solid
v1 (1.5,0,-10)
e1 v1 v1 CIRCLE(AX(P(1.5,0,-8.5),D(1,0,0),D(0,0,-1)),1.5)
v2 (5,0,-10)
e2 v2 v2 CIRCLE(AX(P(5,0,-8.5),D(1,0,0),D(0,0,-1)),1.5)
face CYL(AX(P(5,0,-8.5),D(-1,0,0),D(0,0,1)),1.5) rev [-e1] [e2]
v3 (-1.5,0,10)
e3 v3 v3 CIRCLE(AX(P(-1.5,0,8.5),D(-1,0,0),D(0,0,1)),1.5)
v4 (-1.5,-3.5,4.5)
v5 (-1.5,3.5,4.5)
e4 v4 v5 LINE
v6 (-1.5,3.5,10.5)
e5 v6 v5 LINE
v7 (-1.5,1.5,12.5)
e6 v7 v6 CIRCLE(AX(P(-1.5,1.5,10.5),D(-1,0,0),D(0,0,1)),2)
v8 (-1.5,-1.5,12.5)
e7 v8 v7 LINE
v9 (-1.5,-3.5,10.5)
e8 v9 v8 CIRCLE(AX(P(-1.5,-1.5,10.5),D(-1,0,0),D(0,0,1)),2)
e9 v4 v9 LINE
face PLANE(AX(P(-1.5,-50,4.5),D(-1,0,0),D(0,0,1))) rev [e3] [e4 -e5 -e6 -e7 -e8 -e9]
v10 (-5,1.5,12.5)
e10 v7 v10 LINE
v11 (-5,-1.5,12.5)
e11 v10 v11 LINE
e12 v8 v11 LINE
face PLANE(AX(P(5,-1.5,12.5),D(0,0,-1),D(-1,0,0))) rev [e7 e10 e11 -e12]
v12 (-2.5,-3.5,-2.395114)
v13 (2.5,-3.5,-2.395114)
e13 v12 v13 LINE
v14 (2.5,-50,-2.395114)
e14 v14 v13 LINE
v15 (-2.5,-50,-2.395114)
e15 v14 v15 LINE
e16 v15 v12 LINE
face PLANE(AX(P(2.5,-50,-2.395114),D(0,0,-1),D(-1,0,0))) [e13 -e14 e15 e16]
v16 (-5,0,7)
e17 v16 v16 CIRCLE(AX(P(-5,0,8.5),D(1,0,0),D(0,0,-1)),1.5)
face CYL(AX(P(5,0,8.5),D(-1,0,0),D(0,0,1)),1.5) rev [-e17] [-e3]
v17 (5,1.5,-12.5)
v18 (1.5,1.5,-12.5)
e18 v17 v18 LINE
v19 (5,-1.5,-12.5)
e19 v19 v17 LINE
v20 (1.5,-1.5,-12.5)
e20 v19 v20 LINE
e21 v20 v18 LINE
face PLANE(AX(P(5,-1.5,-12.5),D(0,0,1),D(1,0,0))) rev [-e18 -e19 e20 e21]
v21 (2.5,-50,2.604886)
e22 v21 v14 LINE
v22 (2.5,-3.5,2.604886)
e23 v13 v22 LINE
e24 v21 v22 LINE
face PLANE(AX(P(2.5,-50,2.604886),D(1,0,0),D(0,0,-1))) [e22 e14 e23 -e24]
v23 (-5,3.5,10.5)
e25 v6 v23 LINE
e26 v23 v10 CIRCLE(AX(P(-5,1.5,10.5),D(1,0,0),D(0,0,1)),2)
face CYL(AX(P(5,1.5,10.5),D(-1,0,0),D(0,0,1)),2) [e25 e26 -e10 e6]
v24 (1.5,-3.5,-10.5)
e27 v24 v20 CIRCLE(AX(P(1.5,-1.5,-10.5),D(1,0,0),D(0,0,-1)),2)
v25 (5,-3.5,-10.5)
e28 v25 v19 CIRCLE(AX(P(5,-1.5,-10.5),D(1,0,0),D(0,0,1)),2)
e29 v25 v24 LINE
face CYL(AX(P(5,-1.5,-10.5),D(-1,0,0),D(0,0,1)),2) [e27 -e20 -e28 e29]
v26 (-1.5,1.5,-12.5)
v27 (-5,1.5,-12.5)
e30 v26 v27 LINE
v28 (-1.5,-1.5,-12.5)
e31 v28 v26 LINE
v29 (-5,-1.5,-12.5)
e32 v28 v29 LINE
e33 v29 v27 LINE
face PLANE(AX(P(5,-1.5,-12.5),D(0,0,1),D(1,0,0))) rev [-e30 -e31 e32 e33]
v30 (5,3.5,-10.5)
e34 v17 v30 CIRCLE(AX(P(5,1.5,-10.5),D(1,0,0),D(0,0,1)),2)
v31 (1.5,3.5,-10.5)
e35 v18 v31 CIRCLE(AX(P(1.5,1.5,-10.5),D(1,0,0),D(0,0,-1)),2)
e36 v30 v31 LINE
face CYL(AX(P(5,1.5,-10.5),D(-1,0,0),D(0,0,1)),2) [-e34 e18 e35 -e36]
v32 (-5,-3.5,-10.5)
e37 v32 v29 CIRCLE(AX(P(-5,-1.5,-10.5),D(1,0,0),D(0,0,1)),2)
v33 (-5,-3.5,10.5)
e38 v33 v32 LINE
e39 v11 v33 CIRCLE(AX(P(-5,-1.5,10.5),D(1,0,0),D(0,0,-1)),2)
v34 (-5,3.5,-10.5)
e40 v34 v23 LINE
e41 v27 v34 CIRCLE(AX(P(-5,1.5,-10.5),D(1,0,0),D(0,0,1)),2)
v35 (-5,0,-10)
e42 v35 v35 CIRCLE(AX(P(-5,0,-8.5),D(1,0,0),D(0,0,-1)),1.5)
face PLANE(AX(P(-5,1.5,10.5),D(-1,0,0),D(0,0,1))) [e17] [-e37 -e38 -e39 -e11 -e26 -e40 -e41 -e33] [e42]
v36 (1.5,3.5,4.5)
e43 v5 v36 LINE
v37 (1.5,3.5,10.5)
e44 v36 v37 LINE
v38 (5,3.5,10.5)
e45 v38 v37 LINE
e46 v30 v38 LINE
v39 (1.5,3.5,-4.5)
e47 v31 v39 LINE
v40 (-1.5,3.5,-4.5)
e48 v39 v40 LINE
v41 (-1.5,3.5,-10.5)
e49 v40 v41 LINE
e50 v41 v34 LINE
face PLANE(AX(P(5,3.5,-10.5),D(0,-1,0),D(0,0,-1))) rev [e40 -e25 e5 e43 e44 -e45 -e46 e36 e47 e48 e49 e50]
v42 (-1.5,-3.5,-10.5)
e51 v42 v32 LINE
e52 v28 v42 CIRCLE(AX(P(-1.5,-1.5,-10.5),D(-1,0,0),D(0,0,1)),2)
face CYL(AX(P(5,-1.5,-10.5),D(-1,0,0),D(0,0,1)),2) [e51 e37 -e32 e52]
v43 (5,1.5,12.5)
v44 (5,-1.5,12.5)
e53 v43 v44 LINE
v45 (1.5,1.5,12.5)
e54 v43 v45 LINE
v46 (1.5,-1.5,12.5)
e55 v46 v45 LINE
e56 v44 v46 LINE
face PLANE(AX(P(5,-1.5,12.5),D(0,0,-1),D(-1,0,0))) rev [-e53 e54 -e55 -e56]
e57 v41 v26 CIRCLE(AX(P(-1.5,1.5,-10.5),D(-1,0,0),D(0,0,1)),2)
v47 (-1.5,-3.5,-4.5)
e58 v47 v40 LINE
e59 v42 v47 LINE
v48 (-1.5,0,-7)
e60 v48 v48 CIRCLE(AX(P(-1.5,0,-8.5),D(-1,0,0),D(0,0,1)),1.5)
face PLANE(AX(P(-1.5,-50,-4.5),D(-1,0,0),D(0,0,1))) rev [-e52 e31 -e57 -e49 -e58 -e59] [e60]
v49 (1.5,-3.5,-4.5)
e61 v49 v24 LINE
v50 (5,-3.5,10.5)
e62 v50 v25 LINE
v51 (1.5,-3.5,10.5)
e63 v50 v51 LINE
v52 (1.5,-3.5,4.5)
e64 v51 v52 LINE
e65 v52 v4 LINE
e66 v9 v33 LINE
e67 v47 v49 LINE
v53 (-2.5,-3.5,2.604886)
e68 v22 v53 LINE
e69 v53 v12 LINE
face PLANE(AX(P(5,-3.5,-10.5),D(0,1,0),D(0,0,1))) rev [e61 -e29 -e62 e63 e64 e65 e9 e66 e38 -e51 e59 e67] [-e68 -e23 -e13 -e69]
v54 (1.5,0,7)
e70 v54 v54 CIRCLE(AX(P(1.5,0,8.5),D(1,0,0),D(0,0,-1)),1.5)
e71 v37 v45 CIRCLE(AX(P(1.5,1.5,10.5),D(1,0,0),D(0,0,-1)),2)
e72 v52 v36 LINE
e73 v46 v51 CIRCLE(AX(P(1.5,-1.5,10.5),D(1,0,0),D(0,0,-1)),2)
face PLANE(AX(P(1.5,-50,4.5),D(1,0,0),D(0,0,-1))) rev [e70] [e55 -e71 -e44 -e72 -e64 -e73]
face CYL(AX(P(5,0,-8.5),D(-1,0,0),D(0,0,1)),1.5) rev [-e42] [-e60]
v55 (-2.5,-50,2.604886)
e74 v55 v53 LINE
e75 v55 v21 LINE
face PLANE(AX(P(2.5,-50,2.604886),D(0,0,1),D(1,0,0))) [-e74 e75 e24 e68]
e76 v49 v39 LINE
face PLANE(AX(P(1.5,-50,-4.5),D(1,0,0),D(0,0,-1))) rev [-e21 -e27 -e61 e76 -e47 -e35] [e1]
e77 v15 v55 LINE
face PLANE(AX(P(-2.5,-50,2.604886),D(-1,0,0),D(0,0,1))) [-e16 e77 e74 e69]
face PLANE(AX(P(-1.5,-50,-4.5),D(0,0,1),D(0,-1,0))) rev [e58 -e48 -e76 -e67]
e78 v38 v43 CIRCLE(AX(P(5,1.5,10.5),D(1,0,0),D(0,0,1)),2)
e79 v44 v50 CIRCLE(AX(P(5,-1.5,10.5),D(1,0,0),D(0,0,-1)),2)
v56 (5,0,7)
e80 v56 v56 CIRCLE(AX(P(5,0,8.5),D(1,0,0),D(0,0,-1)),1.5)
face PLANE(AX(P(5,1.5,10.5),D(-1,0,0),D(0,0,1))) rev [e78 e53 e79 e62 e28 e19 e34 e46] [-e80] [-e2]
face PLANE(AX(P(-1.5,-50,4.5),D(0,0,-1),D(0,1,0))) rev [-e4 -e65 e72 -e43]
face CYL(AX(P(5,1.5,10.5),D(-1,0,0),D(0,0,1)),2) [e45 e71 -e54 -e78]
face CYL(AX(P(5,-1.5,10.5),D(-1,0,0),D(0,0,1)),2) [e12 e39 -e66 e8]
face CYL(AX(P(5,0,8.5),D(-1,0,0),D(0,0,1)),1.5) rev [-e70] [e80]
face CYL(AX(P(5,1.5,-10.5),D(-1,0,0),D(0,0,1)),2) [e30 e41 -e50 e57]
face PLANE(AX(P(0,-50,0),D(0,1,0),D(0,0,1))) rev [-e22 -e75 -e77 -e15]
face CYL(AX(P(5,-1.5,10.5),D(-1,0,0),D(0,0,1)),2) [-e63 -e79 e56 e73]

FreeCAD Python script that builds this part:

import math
import FreeCAD as App
import Part
import Sketcher
from FreeCAD import Vector
Q = App.Units.Quantity

doc = App.newDocument("Part")
params = doc.addObject("Spreadsheet::Sheet", "Params")
for row, (alias, value) in enumerate([
    ("sketch1_width", "5 mm"),
    ("pad1_length", "50 mm"),
    ("sketch2_diameter", "3 mm"),
    ("sketch2_radius", "2 mm"),
    ("sketch2_width", "3 mm"),
    ("sketch2_height", "21 mm"),
    ("pad2_length", "10 mm"),
    ("sketch3_width", "3 mm"),
    ("sketch3_height", "8 mm"),
], start=1):
    params.set(f"A{row}", alias)
    params.set(f"B{row}", "=" + value)
    params.setAlias(f"B{row}", alias)

body = doc.addObject("PartDesign::Body", "Body")

# Sketch on XZ plane
sketch1 = body.newObject("Sketcher::SketchObject", "Sketch")
sketch1.AttachmentSupport = (doc.getObject("XZ_Plane"), [""])
sketch1.MapMode = "FlatFace"
sketch1.addGeometry([
    Part.LineSegment(Vector(-2, -2, 0), Vector(-2, 3, 0)),
    Part.LineSegment(Vector(-2, 3, 0), Vector(2, 3, 0)),
    Part.LineSegment(Vector(2, 3, 0), Vector(2, -2, 0)),
    Part.LineSegment(Vector(2, -2, 0), Vector(-2, -2, 0)),
], False)
sketch1.addConstraint([
    Sketcher.Constraint("Coincident", 0, 2, 1, 1),
    Sketcher.Constraint("Coincident", 1, 2, 2, 1),
    Sketcher.Constraint("Coincident", 2, 2, 3, 1),
    Sketcher.Constraint("Coincident", 3, 2, 0, 1),
    Sketcher.Constraint("Vertical", 0),
    Sketcher.Constraint("Horizontal", 1),
    Sketcher.Constraint("Vertical", 2),
    Sketcher.Constraint("Horizontal", 3),
    Sketcher.Constraint("Equal", 3, 0),
    Sketcher.Constraint("DistanceX", 1, 1, 1, 2, Q("5 mm")),
    Sketcher.Constraint("DistanceX", 0, 2, -1, 1, Q("2.5 mm")),
    Sketcher.Constraint("DistanceY", -1, 1, 0, 2, Q("2.604886 mm")),
])
sketch1.setExpression("Constraints[9]", "Params.sketch1_width")
pad1 = body.newObject("PartDesign::Pad", "Pad")
pad1.Profile = sketch1
pad1.setExpression("Length", "Params.pad1_length")

# Sketch on YZ plane
sketch2 = body.newObject("Sketcher::SketchObject", "Sketch001")
sketch2.AttachmentSupport = (doc.getObject("YZ_Plane"), [""])
sketch2.MapMode = "FlatFace"
sketch2.addGeometry([
    Part.LineSegment(Vector(-3.5, 10.5, 0), Vector(-3.5, -10.5, 0)),  # 0
    Part.ArcOfCircle(Part.Circle(Vector(-1.5, -10.5, 0), Vector(0, 0, 1), 2), math.radians(-180), math.radians(-90)),  # 1
    Part.LineSegment(Vector(-1.5, -12.5, 0), Vector(1.5, -12.5, 0)),  # 2
    Part.ArcOfCircle(Part.Circle(Vector(1.5, -10.5, 0), Vector(0, 0, 1), 2), math.radians(-90), math.radians(0)),  # 3
    Part.LineSegment(Vector(3.5, -10.5, 0), Vector(3.5, 10.5, 0)),  # 4
    Part.ArcOfCircle(Part.Circle(Vector(1.5, 10.5, 0), Vector(0, 0, 1), 2), math.radians(0), math.radians(90)),  # 5
    Part.LineSegment(Vector(1.5, 12.5, 0), Vector(-1.5, 12.5, 0)),  # 6
    Part.ArcOfCircle(Part.Circle(Vector(-1.5, 10.5, 0), Vector(0, 0, 1), 2), math.radians(90), math.radians(180)),  # 7
    Part.Circle(Vector(0, -8.5, 0), Vector(0, 0, 1), 1.5),  # 8
    Part.Circle(Vector(0, 8.5, 0), Vector(0, 0, 1), 1.5),  # 9
], False)
sketch2.addConstraint([
    Sketcher.Constraint("Tangent", 0, 2, 1, 1),
    Sketcher.Constraint("Tangent", 1, 2, 2, 1),
    Sketcher.Constraint("Tangent", 2, 2, 3, 1),
    Sketcher.Constraint("Tangent", 3, 2, 4, 1),
    Sketcher.Constraint("Tangent", 4, 2, 5, 1),
    Sketcher.Constraint("Tangent", 5, 2, 6, 1),
    Sketcher.Constraint("Tangent", 6, 2, 7, 1),
    Sketcher.Constraint("Tangent", 7, 2, 0, 1),
    Sketcher.Constraint("Vertical", 0),
    Sketcher.Constraint("Horizontal", 2),
    Sketcher.Constraint("Vertical", 4),
    Sketcher.Constraint("Horizontal", 6),
    Sketcher.Constraint("Equal", 1, 3),
    Sketcher.Constraint("Equal", 3, 5),
    Sketcher.Constraint("Equal", 5, 7),
    Sketcher.Constraint("Equal", 8, 9),
    Sketcher.Constraint("Symmetric", 1, 3, 5, 3, -1, 1),
    Sketcher.Constraint("Symmetric", 8, 3, 9, 3, -1, 1),
    Sketcher.Constraint("PointOnObject", 8, 3, -2),
    Sketcher.Constraint("Diameter", 8, Q("3 mm")),
    Sketcher.Constraint("Radius", 1, Q("2 mm")),
    Sketcher.Constraint("DistanceX", 2, 1, 2, 2, Q("3 mm")),
    Sketcher.Constraint("DistanceY", 0, 2, 0, 1, Q("21 mm")),
    Sketcher.Constraint("DistanceY", 1, 3, 8, 3, Q("2 mm")),
])
sketch2.setExpression("Constraints[19]", "Params.sketch2_diameter")
sketch2.setExpression("Constraints[20]", "Params.sketch2_radius")
sketch2.setExpression("Constraints[21]", "Params.sketch2_width")
sketch2.setExpression("Constraints[22]", "Params.sketch2_height")
pad2 = body.newObject("PartDesign::Pad", "Pad001")
pad2.Profile = sketch2
pad2.setExpression("Length", "Params.pad2_length")
pad2.Midplane = True

# Sketch on XZ plane
sketch3 = body.newObject("Sketcher::SketchObject", "Sketch002")
sketch3.AttachmentSupport = (doc.getObject("XZ_Plane"), [""])
sketch3.MapMode = "FlatFace"
sketch3.AttachmentOffset = App.Placement(Vector(0, 0, -3.5), App.Rotation())
sketch3.addGeometry([
    Part.LineSegment(Vector(-1.5, -12.5, 0), Vector(-1.5, -4.5, 0)),  # 0
    Part.LineSegment(Vector(-1.5, -4.5, 0), Vector(1.5, -4.5, 0)),  # 1
    Part.LineSegment(Vector(1.5, -4.5, 0), Vector(1.5, -12.5, 0)),  # 2
    Part.LineSegment(Vector(1.5, -12.5, 0), Vector(-1.5, -12.5, 0)),  # 3
    Part.LineSegment(Vector(-1.5, 4.5, 0), Vector(-1.5, 12.5, 0)),  # 4
    Part.LineSegment(Vector(-1.5, 12.5, 0), Vector(1.5, 12.5, 0)),  # 5
    Part.LineSegment(Vector(1.5, 12.5, 0), Vector(1.5, 4.5, 0)),  # 6
    Part.LineSegment(Vector(1.5, 4.5, 0), Vector(-1.5, 4.5, 0)),  # 7
], False)
sketch3.addConstraint([
    Sketcher.Constraint("Coincident", 0, 2, 1, 1),
    Sketcher.Constraint("Coincident", 1, 2, 2, 1),
    Sketcher.Constraint("Coincident", 2, 2, 3, 1),
    Sketcher.Constraint("Coincident", 3, 2, 0, 1),
    Sketcher.Constraint("Coincident", 4, 2, 5, 1),
    Sketcher.Constraint("Coincident", 5, 2, 6, 1),
    Sketcher.Constraint("Coincident", 6, 2, 7, 1),
    Sketcher.Constraint("Coincident", 7, 2, 4, 1),
    Sketcher.Constraint("Vertical", 0),
    Sketcher.Constraint("Horizontal", 1),
    Sketcher.Constraint("Vertical", 2),
    Sketcher.Constraint("Horizontal", 3),
    Sketcher.Constraint("Vertical", 4),
    Sketcher.Constraint("Horizontal", 5),
    Sketcher.Constraint("Vertical", 6),
    Sketcher.Constraint("Horizontal", 7),
    Sketcher.Constraint("Symmetric", 2, 2, 4, 2, -1, 1),
    Sketcher.Constraint("Symmetric", 0, 2, 6, 2, -1, 1),
    Sketcher.Constraint("Vertical", 3, 2, 4, 2),
    Sketcher.Constraint("DistanceX", 1, 1, 1, 2, Q("3 mm")),
    Sketcher.Constraint("DistanceY", 0, 1, 0, 2, Q("8 mm")),
    Sketcher.Constraint("DistanceY", 0, 2, 4, 2, Q("17 mm")),
])
sketch3.setExpression("Constraints[19]", "Params.sketch3_width")
sketch3.setExpression("Constraints[20]", "Params.sketch3_height")
pocket1 = body.newObject("PartDesign::Pocket", "Pocket")
pocket1.Profile = sketch3
pocket1.Type = "ThroughAll"
pocket1.Midplane = True

doc.recompute()
